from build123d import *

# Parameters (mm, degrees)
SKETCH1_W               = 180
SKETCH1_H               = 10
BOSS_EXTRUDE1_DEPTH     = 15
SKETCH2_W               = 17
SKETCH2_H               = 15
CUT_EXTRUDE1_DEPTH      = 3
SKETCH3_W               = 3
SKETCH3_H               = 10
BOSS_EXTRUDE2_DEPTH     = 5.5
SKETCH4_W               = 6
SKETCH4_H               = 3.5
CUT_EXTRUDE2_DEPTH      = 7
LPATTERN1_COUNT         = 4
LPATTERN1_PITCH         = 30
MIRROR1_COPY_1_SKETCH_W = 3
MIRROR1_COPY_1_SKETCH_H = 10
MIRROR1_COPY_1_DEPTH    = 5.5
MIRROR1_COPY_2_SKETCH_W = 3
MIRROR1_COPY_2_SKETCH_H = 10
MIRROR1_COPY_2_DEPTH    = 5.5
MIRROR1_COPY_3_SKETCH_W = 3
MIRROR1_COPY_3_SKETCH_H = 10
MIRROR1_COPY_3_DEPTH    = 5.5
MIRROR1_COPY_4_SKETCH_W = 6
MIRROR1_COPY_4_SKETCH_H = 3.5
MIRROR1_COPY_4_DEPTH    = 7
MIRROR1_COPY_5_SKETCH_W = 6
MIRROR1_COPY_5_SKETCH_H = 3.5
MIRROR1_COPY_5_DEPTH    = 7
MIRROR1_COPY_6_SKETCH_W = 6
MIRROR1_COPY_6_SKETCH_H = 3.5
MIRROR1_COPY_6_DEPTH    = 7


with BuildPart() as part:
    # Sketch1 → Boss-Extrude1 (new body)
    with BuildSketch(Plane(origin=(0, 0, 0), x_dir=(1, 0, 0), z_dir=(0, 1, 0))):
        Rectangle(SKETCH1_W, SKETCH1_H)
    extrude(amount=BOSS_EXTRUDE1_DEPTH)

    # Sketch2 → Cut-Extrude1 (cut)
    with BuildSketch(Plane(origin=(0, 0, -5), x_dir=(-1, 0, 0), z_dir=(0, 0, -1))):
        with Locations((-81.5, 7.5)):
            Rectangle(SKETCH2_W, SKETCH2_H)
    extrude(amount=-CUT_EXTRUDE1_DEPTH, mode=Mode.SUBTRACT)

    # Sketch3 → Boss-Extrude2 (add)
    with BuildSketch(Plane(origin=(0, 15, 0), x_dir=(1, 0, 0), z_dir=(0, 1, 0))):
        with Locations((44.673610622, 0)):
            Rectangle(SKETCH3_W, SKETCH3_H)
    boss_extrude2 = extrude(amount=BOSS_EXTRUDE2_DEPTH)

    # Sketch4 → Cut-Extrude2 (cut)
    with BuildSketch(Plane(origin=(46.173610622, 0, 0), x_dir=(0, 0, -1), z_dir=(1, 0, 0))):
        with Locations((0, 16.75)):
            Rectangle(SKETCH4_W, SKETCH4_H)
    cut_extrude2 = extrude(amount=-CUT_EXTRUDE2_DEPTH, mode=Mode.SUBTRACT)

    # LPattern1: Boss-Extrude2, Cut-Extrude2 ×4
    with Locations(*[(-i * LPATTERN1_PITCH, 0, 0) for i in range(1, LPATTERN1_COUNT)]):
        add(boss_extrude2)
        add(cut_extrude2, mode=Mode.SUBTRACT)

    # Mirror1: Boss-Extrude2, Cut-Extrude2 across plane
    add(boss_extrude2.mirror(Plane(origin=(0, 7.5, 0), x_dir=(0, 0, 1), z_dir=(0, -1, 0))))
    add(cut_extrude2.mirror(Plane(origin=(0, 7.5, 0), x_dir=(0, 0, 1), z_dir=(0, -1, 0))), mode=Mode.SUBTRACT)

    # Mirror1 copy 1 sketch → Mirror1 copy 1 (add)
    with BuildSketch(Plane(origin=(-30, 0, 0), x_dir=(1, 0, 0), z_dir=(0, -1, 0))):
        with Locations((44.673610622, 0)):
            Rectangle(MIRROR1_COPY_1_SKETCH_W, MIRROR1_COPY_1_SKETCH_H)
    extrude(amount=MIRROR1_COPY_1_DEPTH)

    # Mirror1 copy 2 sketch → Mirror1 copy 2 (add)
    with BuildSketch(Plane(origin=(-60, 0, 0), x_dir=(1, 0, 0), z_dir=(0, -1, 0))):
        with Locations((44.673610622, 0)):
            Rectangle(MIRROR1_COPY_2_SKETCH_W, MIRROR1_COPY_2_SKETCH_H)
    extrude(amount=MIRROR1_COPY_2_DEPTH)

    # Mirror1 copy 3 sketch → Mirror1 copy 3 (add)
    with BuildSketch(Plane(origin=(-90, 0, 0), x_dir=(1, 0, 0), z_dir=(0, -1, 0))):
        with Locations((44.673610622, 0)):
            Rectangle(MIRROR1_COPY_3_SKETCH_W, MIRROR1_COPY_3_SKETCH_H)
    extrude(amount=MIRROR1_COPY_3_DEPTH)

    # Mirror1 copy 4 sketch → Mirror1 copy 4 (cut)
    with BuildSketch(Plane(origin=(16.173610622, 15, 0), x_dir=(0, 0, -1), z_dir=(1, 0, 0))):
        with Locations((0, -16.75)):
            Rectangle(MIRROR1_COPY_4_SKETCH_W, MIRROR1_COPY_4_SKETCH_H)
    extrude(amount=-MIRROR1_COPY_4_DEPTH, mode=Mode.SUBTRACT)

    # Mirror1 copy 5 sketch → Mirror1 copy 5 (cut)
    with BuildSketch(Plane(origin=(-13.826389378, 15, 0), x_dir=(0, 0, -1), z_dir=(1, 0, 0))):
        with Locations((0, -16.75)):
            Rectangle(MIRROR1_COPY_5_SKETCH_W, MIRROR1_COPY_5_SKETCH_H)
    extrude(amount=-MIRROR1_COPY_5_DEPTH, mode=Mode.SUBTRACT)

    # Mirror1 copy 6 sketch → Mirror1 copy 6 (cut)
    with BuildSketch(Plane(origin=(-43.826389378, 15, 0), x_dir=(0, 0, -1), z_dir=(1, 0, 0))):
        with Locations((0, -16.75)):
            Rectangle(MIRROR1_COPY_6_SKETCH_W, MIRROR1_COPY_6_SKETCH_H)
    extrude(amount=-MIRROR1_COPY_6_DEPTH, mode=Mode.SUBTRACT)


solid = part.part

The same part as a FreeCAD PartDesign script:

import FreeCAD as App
import Part
import Sketcher
from FreeCAD import Vector

doc = App.newDocument("Part")
params = doc.addObject("Spreadsheet::Sheet", "Params")
for row, (alias, value) in enumerate([
    ("sketch1_width", "180 mm"),
    ("sketch1_height", "10 mm"),
    ("pad1_length", "15 mm"),
    ("sketch2_width", "17 mm"),
    ("sketch2_height", "15 mm"),
    ("pocket1_length", "3 mm"),
    ("sketch3_width", "3 mm"),
    ("sketch3_height", "10 mm"),
    ("pad2_length", "5.5 mm"),
    ("sketch4_height", "6 mm"),
    ("sketch4_width", "3.5 mm"),
    ("pocket2_length", "7 mm"),
    ("linearpattern_pitch", "30 mm"),
    ("sketch5_width", "3 mm"),
    ("sketch5_height", "10 mm"),
    ("pad3_length", "5.5 mm"),
    ("sketch6_width", "3 mm"),
    ("sketch6_height", "10 mm"),
    ("pad4_length", "5.5 mm"),
    ("sketch7_width", "3 mm"),
    ("sketch7_height", "10 mm"),
    ("pad5_length", "5.5 mm"),
    ("sketch8_height", "6 mm"),
    ("sketch8_width", "3.5 mm"),
    ("pocket3_length", "7 mm"),
    ("sketch9_height", "6 mm"),
    ("sketch9_width", "3.5 mm"),
    ("pocket4_length", "7 mm"),
    ("sketch10_height", "6 mm"),
    ("sketch10_width", "3.5 mm"),
    ("pocket5_length", "7 mm"),
], start=1):
    params.set(f"A{row}", alias)
    params.set(f"B{row}", "=" + value)
    params.setAlias(f"B{row}", alias)

body = doc.addObject("PartDesign::Body", "Body")

sketch1 = body.newObject("Sketcher::SketchObject", "Sketch")
sketch1.AttachmentSupport = (doc.getObject("XZ_Plane"), [""])
sketch1.MapMode = "FlatFace"
sketch1.addGeometry(Part.LineSegment(Vector(-90, -5, 0), Vector(-90, 5, 0)), False)
sketch1.addGeometry(Part.LineSegment(Vector(-90, 5, 0), Vector(90, 5, 0)), False)
sketch1.addGeometry(Part.LineSegment(Vector(90, 5, 0), Vector(90, -5, 0)), False)
sketch1.addGeometry(Part.LineSegment(Vector(90, -5, 0), Vector(-90, -5, 0)), False)
sketch1.addConstraint(Sketcher.Constraint("Coincident", 0, 2, 1, 1))
sketch1.addConstraint(Sketcher.Constraint("Coincident", 1, 2, 2, 1))
sketch1.addConstraint(Sketcher.Constraint("Coincident", 2, 2, 3, 1))
sketch1.addConstraint(Sketcher.Constraint("Coincident", 3, 2, 0, 1))
sketch1.addConstraint(Sketcher.Constraint("Vertical", 0))
sketch1.addConstraint(Sketcher.Constraint("Horizontal", 1))
sketch1.addConstraint(Sketcher.Constraint("Vertical", 2))
sketch1.addConstraint(Sketcher.Constraint("Horizontal", 3))
sketch1.addConstraint(Sketcher.Constraint("Symmetric", 0, 2, 2, 2, -1, 1))
sketch1.addConstraint(Sketcher.Constraint("DistanceX", 1, 1, 1, 2, 180.0))
sketch1.addConstraint(Sketcher.Constraint("DistanceY", 0, 1, 0, 2, 10.0))
sketch1.setExpression("Constraints[9]", "Params.sketch1_width")
sketch1.setExpression("Constraints[10]", "Params.sketch1_height")
pad1 = body.newObject("PartDesign::Pad", "Pad")
pad1.Profile = sketch1
pad1.setExpression("Length", "Params.pad1_length")
pad1.Reversed = True

sketch2 = body.newObject("Sketcher::SketchObject", "Sketch001")
sketch2.AttachmentSupport = (doc.getObject("XY_Plane"), [""])
sketch2.MapMode = "FlatFace"
sketch2.AttachmentOffset = App.Placement(Vector(0, 0, -5), App.Rotation())
sketch2.addGeometry(Part.LineSegment(Vector(90, 15, 0), Vector(90, 0, 0)), False)
sketch2.addGeometry(Part.LineSegment(Vector(90, 0, 0), Vector(73, 0, 0)), False)
sketch2.addGeometry(Part.LineSegment(Vector(73, 0, 0), Vector(73, 15, 0)), False)
sketch2.addGeometry(Part.LineSegment(Vector(73, 15, 0), Vector(90, 15, 0)), False)
sketch2.addConstraint(Sketcher.Constraint("Coincident", 0, 2, 1, 1))
sketch2.addConstraint(Sketcher.Constraint("Coincident", 1, 2, 2, 1))
sketch2.addConstraint(Sketcher.Constraint("Coincident", 2, 2, 3, 1))
sketch2.addConstraint(Sketcher.Constraint("Coincident", 3, 2, 0, 1))
sketch2.addConstraint(Sketcher.Constraint("Vertical", 0))
sketch2.addConstraint(Sketcher.Constraint("Horizontal", 1))
sketch2.addConstraint(Sketcher.Constraint("Vertical", 2))
sketch2.addConstraint(Sketcher.Constraint("Horizontal", 3))
sketch2.addConstraint(Sketcher.Constraint("PointOnObject", 0, 2, -1))
sketch2.addConstraint(Sketcher.Constraint("DistanceX", 1, 2, 1, 1, 17.0))
sketch2.addConstraint(Sketcher.Constraint("DistanceY", 0, 2, 0, 1, 15.0))
sketch2.addConstraint(Sketcher.Constraint("DistanceX", -1, 1, 0, 2, 90.0))
sketch2.setExpression("Constraints[9]", "Params.sketch2_width")
sketch2.setExpression("Constraints[10]", "Params.sketch2_height")
pocket1 = body.newObject("PartDesign::Pocket", "Pocket")
pocket1.Profile = sketch2
pocket1.setExpression("Length", "Params.pocket1_length")
pocket1.Reversed = True

sketch3 = body.newObject("Sketcher::SketchObject", "Sketch002")
sketch3.AttachmentSupport = (doc.getObject("XZ_Plane"), [""])
sketch3.MapMode = "FlatFace"
sketch3.AttachmentOffset = App.Placement(Vector(0, 0, -15), App.Rotation())
sketch3.addGeometry(Part.LineSegment(Vector(43.2, -5, 0), Vector(43.2, 5, 0)), False)
sketch3.addGeometry(Part.LineSegment(Vector(43.2, 5, 0), Vector(46.2, 5, 0)), False)
sketch3.addGeometry(Part.LineSegment(Vector(46.2, 5, 0), Vector(46.2, -5, 0)), False)
sketch3.addGeometry(Part.LineSegment(Vector(46.2, -5, 0), Vector(43.2, -5, 0)), False)
sketch3.addConstraint(Sketcher.Constraint("Coincident", 0, 2, 1, 1))
sketch3.addConstraint(Sketcher.Constraint("Coincident", 1, 2, 2, 1))
sketch3.addConstraint(Sketcher.Constraint("Coincident", 2, 2, 3, 1))
sketch3.addConstraint(Sketcher.Constraint("Coincident", 3, 2, 0, 1))
sketch3.addConstraint(Sketcher.Constraint("Vertical", 0))
sketch3.addConstraint(Sketcher.Constraint("Horizontal", 1))
sketch3.addConstraint(Sketcher.Constraint("Vertical", 2))
sketch3.addConstraint(Sketcher.Constraint("Horizontal", 3))
sketch3.addConstraint(Sketcher.Constraint("DistanceX", 1, 1, 1, 2, 3.0))
sketch3.addConstraint(Sketcher.Constraint("DistanceY", 0, 1, 0, 2, 10.0))
sketch3.addConstraint(Sketcher.Constraint("DistanceY", -1, 1, 0, 2, 5.0))
sketch3.addConstraint(Sketcher.Constraint("DistanceX", -1, 1, 0, 2, 43.173611))
sketch3.setExpression("Constraints[8]", "Params.sketch3_width")
sketch3.setExpression("Constraints[9]", "Params.sketch3_height")
pad2 = body.newObject("PartDesign::Pad", "Pad001")
pad2.Profile = sketch3
pad2.setExpression("Length", "Params.pad2_length")
pad2.Reversed = True

sketch4 = body.newObject("Sketcher::SketchObject", "Sketch003")
sketch4.AttachmentSupport = (doc.getObject("YZ_Plane"), [""])
sketch4.MapMode = "FlatFace"
sketch4.AttachmentOffset = App.Placement(Vector(0, 0, 46.173611), App.Rotation())
sketch4.addGeometry(Part.LineSegment(Vector(18.5, 3, 0), Vector(15, 3, 0)), False)
sketch4.addGeometry(Part.LineSegment(Vector(15, 3, 0), Vector(15, -3, 0)), False)
sketch4.addGeometry(Part.LineSegment(Vector(15, -3, 0), Vector(18.5, -3, 0)), False)
sketch4.addGeometry(Part.LineSegment(Vector(18.5, -3, 0), Vector(18.5, 3, 0)), False)
sketch4.addConstraint(Sketcher.Constraint("Coincident", 0, 2, 1, 1))
sketch4.addConstraint(Sketcher.Constraint("Coincident", 1, 2, 2, 1))
sketch4.addConstraint(Sketcher.Constraint("Coincident", 2, 2, 3, 1))
sketch4.addConstraint(Sketcher.Constraint("Coincident", 3, 2, 0, 1))
sketch4.addConstraint(Sketcher.Constraint("Horizontal", 0))
sketch4.addConstraint(Sketcher.Constraint("Vertical", 1))
sketch4.addConstraint(Sketcher.Constraint("Horizontal", 2))
sketch4.addConstraint(Sketcher.Constraint("Vertical", 3))
sketch4.addConstraint(Sketcher.Constraint("DistanceY", 1, 2, 1, 1, 6.0))
sketch4.addConstraint(Sketcher.Constraint("DistanceX", 0, 2, 0, 1, 3.5))
sketch4.addConstraint(Sketcher.Constraint("DistanceX", -1, 1, 0, 2, 15.0))
sketch4.addConstraint(Sketcher.Constraint("DistanceY", -1, 1, 0, 2, 3.0))
sketch4.setExpression("Constraints[8]", "Params.sketch4_height")
sketch4.setExpression("Constraints[9]", "Params.sketch4_width")
pocket2 = body.newObject("PartDesign::Pocket", "Pocket001")
pocket2.Profile = sketch4
pocket2.setExpression("Length", "Params.pocket2_length")
doc.recompute()

linearpattern = body.newObject("PartDesign::LinearPattern", "LinearPattern")
linearpattern.Originals = [pad2, pocket2]
linearpattern.Direction = (doc.getObject("X_Axis"), [""])
linearpattern.Mode = "offset"
linearpattern.setExpression("Offset", "Params.linearpattern_pitch")
linearpattern.Occurrences = 4
linearpattern.Reversed = True
body.Tip = linearpattern
doc.recompute()

datumplane = body.newObject("PartDesign::Plane", "DatumPlane")
datumplane.AttachmentSupport = (doc.getObject("XZ_Plane"), [""])
datumplane.MapMode = "FlatFace"
datumplane.AttachmentOffset = App.Placement(Vector(0, 0, -7.5), App.Rotation())
mirrored = body.newObject("PartDesign::Mirrored", "Mirrored")
mirrored.Originals = [pad2, pocket2]
mirrored.MirrorPlane = (datumplane, [""])
body.Tip = mirrored

sketch5 = body.newObject("Sketcher::SketchObject", "Sketch004")
sketch5.AttachmentSupport = (doc.getObject("XZ_Plane"), [""])
sketch5.MapMode = "FlatFace"
sketch5.addGeometry(Part.LineSegment(Vector(13.2, 5, 0), Vector(13.2, -5, 0)), False)
sketch5.addGeometry(Part.LineSegment(Vector(13.2, -5, 0), Vector(16.2, -5, 0)), False)
sketch5.addGeometry(Part.LineSegment(Vector(16.2, -5, 0), Vector(16.2, 5, 0)), False)
sketch5.addGeometry(Part.LineSegment(Vector(16.2, 5, 0), Vector(13.2, 5, 0)), False)
sketch5.addConstraint(Sketcher.Constraint("Coincident", 0, 2, 1, 1))
sketch5.addConstraint(Sketcher.Constraint("Coincident", 1, 2, 2, 1))
sketch5.addConstraint(Sketcher.Constraint("Coincident", 2, 2, 3, 1))
sketch5.addConstraint(Sketcher.Constraint("Coincident", 3, 2, 0, 1))
sketch5.addConstraint(Sketcher.Constraint("Vertical", 0))
sketch5.addConstraint(Sketcher.Constraint("Horizontal", 1))
sketch5.addConstraint(Sketcher.Constraint("Vertical", 2))
sketch5.addConstraint(Sketcher.Constraint("Horizontal", 3))
sketch5.addConstraint(Sketcher.Constraint("DistanceX", 1, 1, 1, 2, 3.0))
sketch5.addConstraint(Sketcher.Constraint("DistanceY", 0, 2, 0, 1, 10.0))
sketch5.addConstraint(Sketcher.Constraint("DistanceY", 0, 2, -1, 1, 5.0))
sketch5.addConstraint(Sketcher.Constraint("DistanceX", -1, 1, 0, 2, 13.173611))
sketch5.setExpression("Constraints[8]", "Params.sketch5_width")
sketch5.setExpression("Constraints[9]", "Params.sketch5_height")
pad3 = body.newObject("PartDesign::Pad", "Pad002")
pad3.Profile = sketch5
pad3.setExpression("Length", "Params.pad3_length")

sketch6 = body.newObject("Sketcher::SketchObject", "Sketch005")
sketch6.AttachmentSupport = (doc.getObject("XZ_Plane"), [""])
sketch6.MapMode = "FlatFace"
sketch6.addGeometry(Part.LineSegment(Vector(-16.8, 5, 0), Vector(-16.8, -5, 0)), False)
sketch6.addGeometry(Part.LineSegment(Vector(-16.8, -5, 0), Vector(-13.8, -5, 0)), False)
sketch6.addGeometry(Part.LineSegment(Vector(-13.8, -5, 0), Vector(-13.8, 5, 0)), False)
sketch6.addGeometry(Part.LineSegment(Vector(-13.8, 5, 0), Vector(-16.8, 5, 0)), False)
sketch6.addConstraint(Sketcher.Constraint("Coincident", 0, 2, 1, 1))
sketch6.addConstraint(Sketcher.Constraint("Coincident", 1, 2, 2, 1))
sketch6.addConstraint(Sketcher.Constraint("Coincident", 2, 2, 3, 1))
sketch6.addConstraint(Sketcher.Constraint("Coincident", 3, 2, 0, 1))
sketch6.addConstraint(Sketcher.Constraint("Vertical", 0))
sketch6.addConstraint(Sketcher.Constraint("Horizontal", 1))
sketch6.addConstraint(Sketcher.Constraint("Vertical", 2))
sketch6.addConstraint(Sketcher.Constraint("Horizontal", 3))
sketch6.addConstraint(Sketcher.Constraint("DistanceX", 1, 1, 1, 2, 3.0))
sketch6.addConstraint(Sketcher.Constraint("DistanceY", 0, 2, 0, 1, 10.0))
sketch6.addConstraint(Sketcher.Constraint("DistanceY", 0, 2, -1, 1, 5.0))
sketch6.addConstraint(Sketcher.Constraint("DistanceX", 0, 2, -1, 1, 16.826389))
sketch6.setExpression("Constraints[8]", "Params.sketch6_width")
sketch6.setExpression("Constraints[9]", "Params.sketch6_height")
pad4 = body.newObject("PartDesign::Pad", "Pad003")
pad4.Profile = sketch6
pad4.setExpression("Length", "Params.pad4_length")

sketch7 = body.newObject("Sketcher::SketchObject", "Sketch006")
sketch7.AttachmentSupport = (doc.getObject("XZ_Plane"), [""])
sketch7.MapMode = "FlatFace"
sketch7.addGeometry(Part.LineSegment(Vector(-46.8, 5, 0), Vector(-46.8, -5, 0)), False)
sketch7.addGeometry(Part.LineSegment(Vector(-46.8, -5, 0), Vector(-43.8, -5, 0)), False)
sketch7.addGeometry(Part.LineSegment(Vector(-43.8, -5, 0), Vector(-43.8, 5, 0)), False)
sketch7.addGeometry(Part.LineSegment(Vector(-43.8, 5, 0), Vector(-46.8, 5, 0)), False)
sketch7.addConstraint(Sketcher.Constraint("Coincident", 0, 2, 1, 1))
sketch7.addConstraint(Sketcher.Constraint("Coincident", 1, 2, 2, 1))
sketch7.addConstraint(Sketcher.Constraint("Coincident", 2, 2, 3, 1))
sketch7.addConstraint(Sketcher.Constraint("Coincident", 3, 2, 0, 1))
sketch7.addConstraint(Sketcher.Constraint("Vertical", 0))
sketch7.addConstraint(Sketcher.Constraint("Horizontal", 1))
sketch7.addConstraint(Sketcher.Constraint("Vertical", 2))
sketch7.addConstraint(Sketcher.Constraint("Horizontal", 3))
sketch7.addConstraint(Sketcher.Constraint("DistanceX", 1, 1, 1, 2, 3.0))
sketch7.addConstraint(Sketcher.Constraint("DistanceY", 0, 2, 0, 1, 10.0))
sketch7.addConstraint(Sketcher.Constraint("DistanceY", 0, 2, -1, 1, 5.0))
sketch7.addConstraint(Sketcher.Constraint("DistanceX", 0, 2, -1, 1, 46.826389))
sketch7.setExpression("Constraints[8]", "Params.sketch7_width")
sketch7.setExpression("Constraints[9]", "Params.sketch7_height")
pad5 = body.newObject("PartDesign::Pad", "Pad004")
pad5.Profile = sketch7
pad5.setExpression("Length", "Params.pad5_length")

sketch8 = body.newObject("Sketcher::SketchObject", "Sketch007")
sketch8.AttachmentSupport = (doc.getObject("YZ_Plane"), [""])
sketch8.MapMode = "FlatFace"
sketch8.AttachmentOffset = App.Placement(Vector(0, 0, 16.173611), App.Rotation())
sketch8.addGeometry(Part.LineSegment(Vector(0, 3, 0), Vector(-3.5, 3, 0)), False)
sketch8.addGeometry(Part.LineSegment(Vector(-3.5, 3, 0), Vector(-3.5, -3, 0)), False)
sketch8.addGeometry(Part.LineSegment(Vector(-3.5, -3, 0), Vector(0, -3, 0)), False)
sketch8.addGeometry(Part.LineSegment(Vector(0, -3, 0), Vector(0, 3, 0)), False)
sketch8.addConstraint(Sketcher.Constraint("Coincident", 0, 2, 1, 1))
sketch8.addConstraint(Sketcher.Constraint("Coincident", 1, 2, 2, 1))
sketch8.addConstraint(Sketcher.Constraint("Coincident", 2, 2, 3, 1))
sketch8.addConstraint(Sketcher.Constraint("Coincident", 3, 2, 0, 1))
sketch8.addConstraint(Sketcher.Constraint("Horizontal", 0))
sketch8.addConstraint(Sketcher.Constraint("Vertical", 1))
sketch8.addConstraint(Sketcher.Constraint("Horizontal", 2))
sketch8.addConstraint(Sketcher.Constraint("Vertical", 3))
sketch8.addConstraint(Sketcher.Constraint("Symmetric", 2, 2, 3, 2, -1, 1))
sketch8.addConstraint(Sketcher.Constraint("DistanceY", 1, 2, 1, 1, 6.0))
sketch8.addConstraint(Sketcher.Constraint("DistanceX", 0, 2, 0, 1, 3.5))
sketch8.setExpression("Constraints[9]", "Params.sketch8_height")
sketch8.setExpression("Constraints[10]", "Params.sketch8_width")
pocket3 = body.newObject("PartDesign::Pocket", "Pocket002")
pocket3.Profile = sketch8
pocket3.setExpression("Length", "Params.pocket3_length")

sketch9 = body.newObject("Sketcher::SketchObject", "Sketch008")
sketch9.AttachmentSupport = (doc.getObject("YZ_Plane"), [""])
sketch9.MapMode = "FlatFace"
sketch9.AttachmentOffset = App.Placement(Vector(0, 0, -13.826389), App.Rotation())
sketch9.addGeometry(Part.LineSegment(Vector(0, 3, 0), Vector(-3.5, 3, 0)), False)
sketch9.addGeometry(Part.LineSegment(Vector(-3.5, 3, 0), Vector(-3.5, -3, 0)), False)
sketch9.addGeometry(Part.LineSegment(Vector(-3.5, -3, 0), Vector(0, -3, 0)), False)
sketch9.addGeometry(Part.LineSegment(Vector(0, -3, 0), Vector(0, 3, 0)), False)
sketch9.addConstraint(Sketcher.Constraint("Coincident", 0, 2, 1, 1))
sketch9.addConstraint(Sketcher.Constraint("Coincident", 1, 2, 2, 1))
sketch9.addConstraint(Sketcher.Constraint("Coincident", 2, 2, 3, 1))
sketch9.addConstraint(Sketcher.Constraint("Coincident", 3, 2, 0, 1))
sketch9.addConstraint(Sketcher.Constraint("Horizontal", 0))
sketch9.addConstraint(Sketcher.Constraint("Vertical", 1))
sketch9.addConstraint(Sketcher.Constraint("Horizontal", 2))
sketch9.addConstraint(Sketcher.Constraint("Vertical", 3))
sketch9.addConstraint(Sketcher.Constraint("Symmetric", 2, 2, 3, 2, -1, 1))
sketch9.addConstraint(Sketcher.Constraint("DistanceY", 1, 2, 1, 1, 6.0))
sketch9.addConstraint(Sketcher.Constraint("DistanceX", 0, 2, 0, 1, 3.5))
sketch9.setExpression("Constraints[9]", "Params.sketch9_height")
sketch9.setExpression("Constraints[10]", "Params.sketch9_width")
pocket4 = body.newObject("PartDesign::Pocket", "Pocket003")
pocket4.Profile = sketch9
pocket4.setExpression("Length", "Params.pocket4_length")

sketch10 = body.newObject("Sketcher::SketchObject", "Sketch009")
sketch10.AttachmentSupport = (doc.getObject("YZ_Plane"), [""])
sketch10.MapMode = "FlatFace"
sketch10.AttachmentOffset = App.Placement(Vector(0, 0, -43.826389), App.Rotation())
sketch10.addGeometry(Part.LineSegment(Vector(0, 3, 0), Vector(-3.5, 3, 0)), False)
sketch10.addGeometry(Part.LineSegment(Vector(-3.5, 3, 0), Vector(-3.5, -3, 0)), False)
sketch10.addGeometry(Part.LineSegment(Vector(-3.5, -3, 0), Vector(0, -3, 0)), False)
sketch10.addGeometry(Part.LineSegment(Vector(0, -3, 0), Vector(0, 3, 0)), False)
sketch10.addConstraint(Sketcher.Constraint("Coincident", 0, 2, 1, 1))
sketch10.addConstraint(Sketcher.Constraint("Coincident", 1, 2, 2, 1))
sketch10.addConstraint(Sketcher.Constraint("Coincident", 2, 2, 3, 1))
sketch10.addConstraint(Sketcher.Constraint("Coincident", 3, 2, 0, 1))
sketch10.addConstraint(Sketcher.Constraint("Horizontal", 0))
sketch10.addConstraint(Sketcher.Constraint("Vertical", 1))
sketch10.addConstraint(Sketcher.Constraint("Horizontal", 2))
sketch10.addConstraint(Sketcher.Constraint("Vertical", 3))
sketch10.addConstraint(Sketcher.Constraint("Symmetric", 2, 2, 3, 2, -1, 1))
sketch10.addConstraint(Sketcher.Constraint("DistanceY", 1, 2, 1, 1, 6.0))
sketch10.addConstraint(Sketcher.Constraint("DistanceX", 0, 2, 0, 1, 3.5))
sketch10.setExpression("Constraints[9]", "Params.sketch10_height")
sketch10.setExpression("Constraints[10]", "Params.sketch10_width")
pocket5 = body.newObject("PartDesign::Pocket", "Pocket004")
pocket5.Profile = sketch10
pocket5.setExpression("Length", "Params.pocket5_length")

doc.recompute()
